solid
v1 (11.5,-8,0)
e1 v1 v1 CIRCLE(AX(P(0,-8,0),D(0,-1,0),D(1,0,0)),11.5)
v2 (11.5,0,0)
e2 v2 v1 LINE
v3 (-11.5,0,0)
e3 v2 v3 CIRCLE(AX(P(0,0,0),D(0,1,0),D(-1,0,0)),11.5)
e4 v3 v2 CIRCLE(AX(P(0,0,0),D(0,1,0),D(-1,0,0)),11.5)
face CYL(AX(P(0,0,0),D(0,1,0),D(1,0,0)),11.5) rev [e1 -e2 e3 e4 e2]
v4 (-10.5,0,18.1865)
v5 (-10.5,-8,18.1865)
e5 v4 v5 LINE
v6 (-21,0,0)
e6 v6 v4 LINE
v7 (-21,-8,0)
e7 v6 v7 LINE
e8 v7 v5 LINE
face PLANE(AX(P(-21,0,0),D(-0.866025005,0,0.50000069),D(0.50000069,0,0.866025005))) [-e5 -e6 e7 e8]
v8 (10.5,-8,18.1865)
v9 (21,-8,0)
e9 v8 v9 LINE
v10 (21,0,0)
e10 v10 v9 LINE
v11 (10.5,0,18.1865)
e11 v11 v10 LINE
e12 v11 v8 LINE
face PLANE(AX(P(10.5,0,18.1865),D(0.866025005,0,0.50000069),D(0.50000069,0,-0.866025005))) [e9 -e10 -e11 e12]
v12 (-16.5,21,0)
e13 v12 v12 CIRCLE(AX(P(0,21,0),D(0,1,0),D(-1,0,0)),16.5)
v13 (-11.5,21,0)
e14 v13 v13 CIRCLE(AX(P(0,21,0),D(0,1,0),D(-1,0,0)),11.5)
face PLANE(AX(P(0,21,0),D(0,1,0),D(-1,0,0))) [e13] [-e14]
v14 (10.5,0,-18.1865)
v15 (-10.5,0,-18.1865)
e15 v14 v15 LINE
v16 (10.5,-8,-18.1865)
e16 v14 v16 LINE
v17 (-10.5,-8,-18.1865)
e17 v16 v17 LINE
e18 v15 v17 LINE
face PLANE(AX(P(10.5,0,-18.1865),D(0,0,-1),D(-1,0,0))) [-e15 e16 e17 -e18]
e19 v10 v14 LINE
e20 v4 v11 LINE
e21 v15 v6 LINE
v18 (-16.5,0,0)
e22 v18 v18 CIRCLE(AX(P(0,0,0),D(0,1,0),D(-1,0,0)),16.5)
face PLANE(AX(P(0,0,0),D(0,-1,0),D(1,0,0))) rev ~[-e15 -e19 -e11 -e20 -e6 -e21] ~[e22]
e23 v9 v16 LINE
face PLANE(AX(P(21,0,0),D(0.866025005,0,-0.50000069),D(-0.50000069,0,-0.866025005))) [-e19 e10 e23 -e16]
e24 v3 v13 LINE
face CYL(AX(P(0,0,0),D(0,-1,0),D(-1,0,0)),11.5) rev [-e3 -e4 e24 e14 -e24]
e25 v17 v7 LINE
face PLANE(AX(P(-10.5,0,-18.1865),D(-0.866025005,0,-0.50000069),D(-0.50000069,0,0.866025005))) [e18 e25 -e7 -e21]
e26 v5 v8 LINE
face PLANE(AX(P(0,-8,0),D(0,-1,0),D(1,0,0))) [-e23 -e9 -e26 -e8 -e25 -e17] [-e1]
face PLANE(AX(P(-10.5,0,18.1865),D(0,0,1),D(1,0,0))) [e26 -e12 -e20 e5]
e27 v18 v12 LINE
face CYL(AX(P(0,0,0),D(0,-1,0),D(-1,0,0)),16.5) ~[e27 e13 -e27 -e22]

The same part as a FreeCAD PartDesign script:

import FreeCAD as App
import Part
import Sketcher

V = App.Vector
Q = App.Units.Quantity


def add_polygon(sketch, points):
    """Adds a closed chain of lines whose ends are joined by coincident constraints."""
    first, n = sketch.GeometryCount, len(points)
    for a, b in zip(points, points[1:] + points[:1]):
        sketch.addGeometry(Part.LineSegment(App.Vector(*a, 0), App.Vector(*b, 0)), False)
    for i in range(n):
        sketch.addConstraint(Sketcher.Constraint("Coincident", first + i, 2, first + (i + 1) % n, 1))

doc = App.newDocument("Part")
body = doc.addObject("PartDesign::Body", "Body")

sketch1 = body.newObject("Sketcher::SketchObject", "Sketch")
sketch1.AttachmentSupport = (doc.getObject("XZ_Plane"), [""])
sketch1.MapMode = "FlatFace"
sketch1.addGeometry([
    Part.Circle(V(0, 0, 0), V(0, 0, 1), 16),
    Part.Circle(V(0, 0, 0), V(0, 0, 1), 12),
], False)
sketch1.addConstraint([
    Sketcher.Constraint("Coincident", 0, 3, -1, 1),
    Sketcher.Constraint("Coincident", 1, 3, -1, 1),
    Sketcher.Constraint("Diameter", 0, 33.0),
    Sketcher.Constraint("Diameter", 1, 23.0),
])
pad1 = body.newObject("PartDesign::Pad", "Pad")
pad1.Profile = sketch1
pad1.Length = 21
pad1.Reversed = True

sketch2 = body.newObject("Sketcher::SketchObject", "Sketch001")
sketch2.AttachmentSupport = (doc.getObject("XZ_Plane"), [""])
sketch2.MapMode = "FlatFace"
add_polygon(sketch2, [(10, 18), (-10, 18), (-21, 0), (-10, -18), (10, -18), (21, 0)])
sketch2.addGeometry(Part.Circle(V(0, 0, 0), V(0, 0, 1), 12), False)
sketch2.addConstraint([
    Sketcher.Constraint("Horizontal", 0),
    Sketcher.Constraint("Horizontal", 3),
    Sketcher.Constraint("Coincident", 6, 3, -1, 1),
    Sketcher.Constraint("Symmetric", 0, 2, 3, 2, -1, 1),
    Sketcher.Constraint("Symmetric", 1, 2, 4, 2, -1, 1),
    Sketcher.Constraint("PointOnObject", 1, 2, -1),
    Sketcher.Constraint("Parallel", 2, 5),
    Sketcher.Constraint("Vertical", 0, 2, 2, 2),
    Sketcher.Constraint("Diameter", 6, 23.0),
    Sketcher.Constraint("DistanceX", 1, 2, 4, 2, 42.0),
    Sketcher.Constraint("DistanceX", 0, 2, 0, 1, 21.0),
    Sketcher.Constraint("Angle", 1, Q("-120 deg")),
])
pad2 = body.newObject("PartDesign::Pad", "Pad001")
pad2.Profile = sketch2
pad2.Length = 8

doc.recompute()
